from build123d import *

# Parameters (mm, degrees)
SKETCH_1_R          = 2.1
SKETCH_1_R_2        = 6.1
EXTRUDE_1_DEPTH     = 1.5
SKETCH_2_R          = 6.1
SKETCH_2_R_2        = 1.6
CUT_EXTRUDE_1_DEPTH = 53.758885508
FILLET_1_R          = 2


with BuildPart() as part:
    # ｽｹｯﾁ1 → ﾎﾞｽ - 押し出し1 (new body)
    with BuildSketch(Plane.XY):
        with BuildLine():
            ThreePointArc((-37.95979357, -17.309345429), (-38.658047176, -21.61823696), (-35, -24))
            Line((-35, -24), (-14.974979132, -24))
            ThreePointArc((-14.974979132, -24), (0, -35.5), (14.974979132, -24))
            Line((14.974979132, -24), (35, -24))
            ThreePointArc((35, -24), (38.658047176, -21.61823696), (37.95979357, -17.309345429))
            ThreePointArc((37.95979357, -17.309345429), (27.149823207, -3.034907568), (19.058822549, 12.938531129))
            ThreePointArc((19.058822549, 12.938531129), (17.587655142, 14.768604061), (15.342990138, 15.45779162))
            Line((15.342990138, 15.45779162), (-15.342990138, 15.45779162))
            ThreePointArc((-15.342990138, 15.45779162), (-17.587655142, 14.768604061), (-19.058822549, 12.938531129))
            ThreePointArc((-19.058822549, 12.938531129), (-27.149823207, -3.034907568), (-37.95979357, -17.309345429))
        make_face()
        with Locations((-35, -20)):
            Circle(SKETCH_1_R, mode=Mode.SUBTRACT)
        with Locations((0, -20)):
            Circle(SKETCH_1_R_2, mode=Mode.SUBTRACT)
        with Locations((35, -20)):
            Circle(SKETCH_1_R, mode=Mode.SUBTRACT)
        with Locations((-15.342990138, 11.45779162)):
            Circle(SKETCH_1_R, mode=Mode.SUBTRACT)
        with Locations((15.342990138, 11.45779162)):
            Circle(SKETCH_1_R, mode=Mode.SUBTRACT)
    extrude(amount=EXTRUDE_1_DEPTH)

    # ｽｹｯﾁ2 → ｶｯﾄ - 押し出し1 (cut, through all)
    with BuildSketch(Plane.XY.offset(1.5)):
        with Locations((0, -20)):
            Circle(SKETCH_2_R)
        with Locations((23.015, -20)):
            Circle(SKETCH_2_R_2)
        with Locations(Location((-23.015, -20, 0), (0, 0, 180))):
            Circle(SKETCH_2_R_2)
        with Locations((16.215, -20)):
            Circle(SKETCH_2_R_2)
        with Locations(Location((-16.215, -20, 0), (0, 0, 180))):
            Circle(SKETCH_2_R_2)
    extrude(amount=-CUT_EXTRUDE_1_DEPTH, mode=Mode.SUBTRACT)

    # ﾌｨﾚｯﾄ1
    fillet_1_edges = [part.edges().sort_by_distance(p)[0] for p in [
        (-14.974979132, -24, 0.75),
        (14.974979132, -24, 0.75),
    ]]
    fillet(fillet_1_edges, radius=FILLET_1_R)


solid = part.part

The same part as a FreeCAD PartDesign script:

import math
import FreeCAD as App
import Part
import Sketcher
from FreeCAD import Vector
Q = App.Units.Quantity


def edges_at(feature, points):
    """Names of the edges that pass closest to the given points."""
    edges = feature.Shape.Edges
    near = lambda p: min(range(len(edges)), key=lambda i: edges[i].distToShape(Part.Vertex(*p))[0])
    return sorted({f"Edge{near(p) + 1}" for p in points})

doc = App.newDocument("Part")
body = doc.addObject("PartDesign::Body", "Body")

# Sketch on XY plane
sketch1 = body.newObject("Sketcher::SketchObject", "Sketch")
sketch1.AttachmentSupport = (doc.getObject("XY_Plane"), [""])
sketch1.MapMode = "FlatFace"
sketch1.addGeometry(Part.ArcOfCircle(Part.Circle(Vector(-35, -20, 0), Vector(0, 0, 1), 4), math.radians(138), math.radians(270)), False)
sketch1.addGeometry(Part.LineSegment(Vector(-35, -24, 0), Vector(-15, -24, 0)), False)
sketch1.addGeometry(Part.ArcOfCircle(Part.Circle(Vector(0, -20, 0), Vector(0, 0, 1), 15.5), math.radians(-165), math.radians(-15)), False)
sketch1.addGeometry(Part.LineSegment(Vector(15, -24, 0), Vector(35, -24, 0)), False)
sketch1.addGeometry(Part.ArcOfCircle(Part.Circle(Vector(35, -20, 0), Vector(0, 0, 1), 4), math.radians(-90), math.radians(42)), False)
sketch1.addGeometry(Part.ArcOfCircle(Part.Circle(Vector(112, 50, 0), Vector(0, 0, 1), 100), math.radians(-158), math.radians(-138)), False)
sketch1.addGeometry(Part.ArcOfCircle(Part.Circle(Vector(15.3, 11.5, 0), Vector(0, 0, 1), 4), math.radians(22), math.radians(90)), False)
sketch1.addGeometry(Part.LineSegment(Vector(15.3, 15.5, 0), Vector(-15.3, 15.5, 0)), False)
sketch1.addGeometry(Part.ArcOfCircle(Part.Circle(Vector(-15.3, 11.5, 0), Vector(0, 0, 1), 4), math.radians(90), math.radians(158)), False)
sketch1.addGeometry(Part.ArcOfCircle(Part.Circle(Vector(-112, 50, 0), Vector(0, 0, 1), 100), math.radians(-42), math.radians(-22)), False)
sketch1.addGeometry(Part.Circle(Vector(-35, -20, 0), Vector(0, 0, 1), 2.1), False)
sketch1.addGeometry(Part.Circle(Vector(0, -20, 0), Vector(0, 0, 1), 6.1), False)
sketch1.addGeometry(Part.Circle(Vector(35, -20, 0), Vector(0, 0, 1), 2.1), False)
sketch1.addGeometry(Part.Circle(Vector(-15.3, 11.5, 0), Vector(0, 0, 1), 2.1), False)
sketch1.addGeometry(Part.Circle(Vector(15.3, 11.5, 0), Vector(0, 0, 1), 2.1), False)
sketch1.addConstraint(Sketcher.Constraint("Tangent", 0, 2, 1, 1))
sketch1.addConstraint(Sketcher.Constraint("Coincident", 1, 2, 2, 1))
sketch1.addConstraint(Sketcher.Constraint("Coincident", 2, 2, 3, 1))
sketch1.addConstraint(Sketcher.Constraint("Tangent", 3, 2, 4, 1))
sketch1.addConstraint(Sketcher.Constraint("Tangent", 4, 2, 5, 2))
sketch1.addConstraint(Sketcher.Constraint("Tangent", 5, 1, 6, 1))
sketch1.addConstraint(Sketcher.Constraint("Tangent", 6, 2, 7, 1))
sketch1.addConstraint(Sketcher.Constraint("Tangent", 7, 2, 8, 1))
sketch1.addConstraint(Sketcher.Constraint("Tangent", 8, 2, 9, 2))
sketch1.addConstraint(Sketcher.Constraint("Tangent", 9, 1, 0, 1))
sketch1.addConstraint(Sketcher.Constraint("Horizontal", 1))
sketch1.addConstraint(Sketcher.Constraint("Horizontal", 3))
sketch1.addConstraint(Sketcher.Constraint("Horizontal", 7))
sketch1.addConstraint(Sketcher.Constraint("Coincident", 10, 3, 0, 3))
sketch1.addConstraint(Sketcher.Constraint("Coincident", 11, 3, 2, 3))
sketch1.addConstraint(Sketcher.Constraint("Coincident", 12, 3, 4, 3))
sketch1.addConstraint(Sketcher.Constraint("Coincident", 13, 3, 8, 3))
sketch1.addConstraint(Sketcher.Constraint("Coincident", 14, 3, 6, 3))
sketch1.addConstraint(Sketcher.Constraint("Equal", 0, 4))
sketch1.addConstraint(Sketcher.Constraint("Equal", 4, 6))
sketch1.addConstraint(Sketcher.Constraint("Equal", 6, 8))
sketch1.addConstraint(Sketcher.Constraint("Equal", 5, 9))
sketch1.addConstraint(Sketcher.Constraint("Equal", 10, 12))
sketch1.addConstraint(Sketcher.Constraint("Equal", 12, 13))
sketch1.addConstraint(Sketcher.Constraint("Equal", 13, 14))
sketch1.addConstraint(Sketcher.Constraint("Symmetric", 0, 3, 4, 3, -2))
sketch1.addConstraint(Sketcher.Constraint("PointOnObject", 2, 3, -2))
sketch1.addConstraint(Sketcher.Constraint("Horizontal", 0, 3, 2, 3))
sketch1.addConstraint(Sketcher.Constraint("Horizontal", 5, 3, 9, 3))
sketch1.addConstraint(Sketcher.Constraint("Radius", 0, Q("4 mm")))
sketch1.addConstraint(Sketcher.Constraint("Radius", 5, Q("100 mm")))
sketch1.addConstraint(Sketcher.Constraint("Diameter", 10, Q("4.2 mm")))
sketch1.addConstraint(Sketcher.Constraint("Diameter", 11, Q("12.2 mm")))
sketch1.addConstraint(Sketcher.Constraint("Radius", 2, Q("15.5 mm")))
sketch1.addConstraint(Sketcher.Constraint("DistanceX", 0, 3, -1, 1, Q("35 mm")))
sketch1.addConstraint(Sketcher.Constraint("DistanceY", 0, 3, -1, 1, Q("20 mm")))
sketch1.addConstraint(Sketcher.Constraint("DistanceX", 7, 2, 7, 1, Q("30.68598 mm")))
sketch1.addConstraint(Sketcher.Constraint("DistanceY", -1, 1, 5, 3, Q("49.957019 mm")))
pad1 = body.newObject("PartDesign::Pad", "Pad")
pad1.Profile = sketch1
pad1.Length = 1.5

# Sketch on XY plane
sketch2 = body.newObject("Sketcher::SketchObject", "Sketch001")
sketch2.AttachmentSupport = (doc.getObject("XY_Plane"), [""])
sketch2.MapMode = "FlatFace"
sketch2.AttachmentOffset = App.Placement(Vector(0, 0, 1.5), App.Rotation())
sketch2.addGeometry(Part.Circle(Vector(0, -20, 0), Vector(0, 0, 1), 6.1), False)
sketch2.addGeometry(Part.Circle(Vector(23, -20, 0), Vector(0, 0, 1), 1.6), False)
sketch2.addGeometry(Part.Circle(Vector(-23, -20, 0), Vector(0, 0, 1), 1.6), False)
sketch2.addGeometry(Part.Circle(Vector(16.2, -20, 0), Vector(0, 0, 1), 1.6), False)
sketch2.addGeometry(Part.Circle(Vector(-16.2, -20, 0), Vector(0, 0, 1), 1.6), False)
sketch2.addConstraint(Sketcher.Constraint("Equal", 1, 2))
sketch2.addConstraint(Sketcher.Constraint("Equal", 2, 3))
sketch2.addConstraint(Sketcher.Constraint("Equal", 3, 4))
sketch2.addConstraint(Sketcher.Constraint("Symmetric", 1, 3, 2, 3, -2))
sketch2.addConstraint(Sketcher.Constraint("Symmetric", 3, 3, 4, 3, -2))
sketch2.addConstraint(Sketcher.Constraint("PointOnObject", 0, 3, -2))
sketch2.addConstraint(Sketcher.Constraint("Horizontal", 0, 3, 1, 3))
sketch2.addConstraint(Sketcher.Constraint("Horizontal", 2, 3, 3, 3))
sketch2.addConstraint(Sketcher.Constraint("Diameter", 0, Q("12.2 mm")))
sketch2.addConstraint(Sketcher.Constraint("Diameter", 1, Q("3.2 mm")))
sketch2.addConstraint(Sketcher.Constraint("DistanceY", 0, 3, -1, 1, Q("20 mm")))
sketch2.addConstraint(Sketcher.Constraint("DistanceX", 3, 3, 1, 3, Q("6.8 mm")))
sketch2.addConstraint(Sketcher.Constraint("DistanceX", 2, 3, 1, 3, Q("46.03 mm")))
pocket1 = body.newObject("PartDesign::Pocket", "Pocket")
pocket1.Profile = sketch2
pocket1.Type = "ThroughAll"
doc.recompute()

fillet = body.newObject("PartDesign::Fillet", "Fillet")
fillet.Base = (pocket1, edges_at(pocket1, [(-14.975, -24, 0.75), (14.975, -24, 0.75)]))
fillet.Radius = 2

doc.recompute()
